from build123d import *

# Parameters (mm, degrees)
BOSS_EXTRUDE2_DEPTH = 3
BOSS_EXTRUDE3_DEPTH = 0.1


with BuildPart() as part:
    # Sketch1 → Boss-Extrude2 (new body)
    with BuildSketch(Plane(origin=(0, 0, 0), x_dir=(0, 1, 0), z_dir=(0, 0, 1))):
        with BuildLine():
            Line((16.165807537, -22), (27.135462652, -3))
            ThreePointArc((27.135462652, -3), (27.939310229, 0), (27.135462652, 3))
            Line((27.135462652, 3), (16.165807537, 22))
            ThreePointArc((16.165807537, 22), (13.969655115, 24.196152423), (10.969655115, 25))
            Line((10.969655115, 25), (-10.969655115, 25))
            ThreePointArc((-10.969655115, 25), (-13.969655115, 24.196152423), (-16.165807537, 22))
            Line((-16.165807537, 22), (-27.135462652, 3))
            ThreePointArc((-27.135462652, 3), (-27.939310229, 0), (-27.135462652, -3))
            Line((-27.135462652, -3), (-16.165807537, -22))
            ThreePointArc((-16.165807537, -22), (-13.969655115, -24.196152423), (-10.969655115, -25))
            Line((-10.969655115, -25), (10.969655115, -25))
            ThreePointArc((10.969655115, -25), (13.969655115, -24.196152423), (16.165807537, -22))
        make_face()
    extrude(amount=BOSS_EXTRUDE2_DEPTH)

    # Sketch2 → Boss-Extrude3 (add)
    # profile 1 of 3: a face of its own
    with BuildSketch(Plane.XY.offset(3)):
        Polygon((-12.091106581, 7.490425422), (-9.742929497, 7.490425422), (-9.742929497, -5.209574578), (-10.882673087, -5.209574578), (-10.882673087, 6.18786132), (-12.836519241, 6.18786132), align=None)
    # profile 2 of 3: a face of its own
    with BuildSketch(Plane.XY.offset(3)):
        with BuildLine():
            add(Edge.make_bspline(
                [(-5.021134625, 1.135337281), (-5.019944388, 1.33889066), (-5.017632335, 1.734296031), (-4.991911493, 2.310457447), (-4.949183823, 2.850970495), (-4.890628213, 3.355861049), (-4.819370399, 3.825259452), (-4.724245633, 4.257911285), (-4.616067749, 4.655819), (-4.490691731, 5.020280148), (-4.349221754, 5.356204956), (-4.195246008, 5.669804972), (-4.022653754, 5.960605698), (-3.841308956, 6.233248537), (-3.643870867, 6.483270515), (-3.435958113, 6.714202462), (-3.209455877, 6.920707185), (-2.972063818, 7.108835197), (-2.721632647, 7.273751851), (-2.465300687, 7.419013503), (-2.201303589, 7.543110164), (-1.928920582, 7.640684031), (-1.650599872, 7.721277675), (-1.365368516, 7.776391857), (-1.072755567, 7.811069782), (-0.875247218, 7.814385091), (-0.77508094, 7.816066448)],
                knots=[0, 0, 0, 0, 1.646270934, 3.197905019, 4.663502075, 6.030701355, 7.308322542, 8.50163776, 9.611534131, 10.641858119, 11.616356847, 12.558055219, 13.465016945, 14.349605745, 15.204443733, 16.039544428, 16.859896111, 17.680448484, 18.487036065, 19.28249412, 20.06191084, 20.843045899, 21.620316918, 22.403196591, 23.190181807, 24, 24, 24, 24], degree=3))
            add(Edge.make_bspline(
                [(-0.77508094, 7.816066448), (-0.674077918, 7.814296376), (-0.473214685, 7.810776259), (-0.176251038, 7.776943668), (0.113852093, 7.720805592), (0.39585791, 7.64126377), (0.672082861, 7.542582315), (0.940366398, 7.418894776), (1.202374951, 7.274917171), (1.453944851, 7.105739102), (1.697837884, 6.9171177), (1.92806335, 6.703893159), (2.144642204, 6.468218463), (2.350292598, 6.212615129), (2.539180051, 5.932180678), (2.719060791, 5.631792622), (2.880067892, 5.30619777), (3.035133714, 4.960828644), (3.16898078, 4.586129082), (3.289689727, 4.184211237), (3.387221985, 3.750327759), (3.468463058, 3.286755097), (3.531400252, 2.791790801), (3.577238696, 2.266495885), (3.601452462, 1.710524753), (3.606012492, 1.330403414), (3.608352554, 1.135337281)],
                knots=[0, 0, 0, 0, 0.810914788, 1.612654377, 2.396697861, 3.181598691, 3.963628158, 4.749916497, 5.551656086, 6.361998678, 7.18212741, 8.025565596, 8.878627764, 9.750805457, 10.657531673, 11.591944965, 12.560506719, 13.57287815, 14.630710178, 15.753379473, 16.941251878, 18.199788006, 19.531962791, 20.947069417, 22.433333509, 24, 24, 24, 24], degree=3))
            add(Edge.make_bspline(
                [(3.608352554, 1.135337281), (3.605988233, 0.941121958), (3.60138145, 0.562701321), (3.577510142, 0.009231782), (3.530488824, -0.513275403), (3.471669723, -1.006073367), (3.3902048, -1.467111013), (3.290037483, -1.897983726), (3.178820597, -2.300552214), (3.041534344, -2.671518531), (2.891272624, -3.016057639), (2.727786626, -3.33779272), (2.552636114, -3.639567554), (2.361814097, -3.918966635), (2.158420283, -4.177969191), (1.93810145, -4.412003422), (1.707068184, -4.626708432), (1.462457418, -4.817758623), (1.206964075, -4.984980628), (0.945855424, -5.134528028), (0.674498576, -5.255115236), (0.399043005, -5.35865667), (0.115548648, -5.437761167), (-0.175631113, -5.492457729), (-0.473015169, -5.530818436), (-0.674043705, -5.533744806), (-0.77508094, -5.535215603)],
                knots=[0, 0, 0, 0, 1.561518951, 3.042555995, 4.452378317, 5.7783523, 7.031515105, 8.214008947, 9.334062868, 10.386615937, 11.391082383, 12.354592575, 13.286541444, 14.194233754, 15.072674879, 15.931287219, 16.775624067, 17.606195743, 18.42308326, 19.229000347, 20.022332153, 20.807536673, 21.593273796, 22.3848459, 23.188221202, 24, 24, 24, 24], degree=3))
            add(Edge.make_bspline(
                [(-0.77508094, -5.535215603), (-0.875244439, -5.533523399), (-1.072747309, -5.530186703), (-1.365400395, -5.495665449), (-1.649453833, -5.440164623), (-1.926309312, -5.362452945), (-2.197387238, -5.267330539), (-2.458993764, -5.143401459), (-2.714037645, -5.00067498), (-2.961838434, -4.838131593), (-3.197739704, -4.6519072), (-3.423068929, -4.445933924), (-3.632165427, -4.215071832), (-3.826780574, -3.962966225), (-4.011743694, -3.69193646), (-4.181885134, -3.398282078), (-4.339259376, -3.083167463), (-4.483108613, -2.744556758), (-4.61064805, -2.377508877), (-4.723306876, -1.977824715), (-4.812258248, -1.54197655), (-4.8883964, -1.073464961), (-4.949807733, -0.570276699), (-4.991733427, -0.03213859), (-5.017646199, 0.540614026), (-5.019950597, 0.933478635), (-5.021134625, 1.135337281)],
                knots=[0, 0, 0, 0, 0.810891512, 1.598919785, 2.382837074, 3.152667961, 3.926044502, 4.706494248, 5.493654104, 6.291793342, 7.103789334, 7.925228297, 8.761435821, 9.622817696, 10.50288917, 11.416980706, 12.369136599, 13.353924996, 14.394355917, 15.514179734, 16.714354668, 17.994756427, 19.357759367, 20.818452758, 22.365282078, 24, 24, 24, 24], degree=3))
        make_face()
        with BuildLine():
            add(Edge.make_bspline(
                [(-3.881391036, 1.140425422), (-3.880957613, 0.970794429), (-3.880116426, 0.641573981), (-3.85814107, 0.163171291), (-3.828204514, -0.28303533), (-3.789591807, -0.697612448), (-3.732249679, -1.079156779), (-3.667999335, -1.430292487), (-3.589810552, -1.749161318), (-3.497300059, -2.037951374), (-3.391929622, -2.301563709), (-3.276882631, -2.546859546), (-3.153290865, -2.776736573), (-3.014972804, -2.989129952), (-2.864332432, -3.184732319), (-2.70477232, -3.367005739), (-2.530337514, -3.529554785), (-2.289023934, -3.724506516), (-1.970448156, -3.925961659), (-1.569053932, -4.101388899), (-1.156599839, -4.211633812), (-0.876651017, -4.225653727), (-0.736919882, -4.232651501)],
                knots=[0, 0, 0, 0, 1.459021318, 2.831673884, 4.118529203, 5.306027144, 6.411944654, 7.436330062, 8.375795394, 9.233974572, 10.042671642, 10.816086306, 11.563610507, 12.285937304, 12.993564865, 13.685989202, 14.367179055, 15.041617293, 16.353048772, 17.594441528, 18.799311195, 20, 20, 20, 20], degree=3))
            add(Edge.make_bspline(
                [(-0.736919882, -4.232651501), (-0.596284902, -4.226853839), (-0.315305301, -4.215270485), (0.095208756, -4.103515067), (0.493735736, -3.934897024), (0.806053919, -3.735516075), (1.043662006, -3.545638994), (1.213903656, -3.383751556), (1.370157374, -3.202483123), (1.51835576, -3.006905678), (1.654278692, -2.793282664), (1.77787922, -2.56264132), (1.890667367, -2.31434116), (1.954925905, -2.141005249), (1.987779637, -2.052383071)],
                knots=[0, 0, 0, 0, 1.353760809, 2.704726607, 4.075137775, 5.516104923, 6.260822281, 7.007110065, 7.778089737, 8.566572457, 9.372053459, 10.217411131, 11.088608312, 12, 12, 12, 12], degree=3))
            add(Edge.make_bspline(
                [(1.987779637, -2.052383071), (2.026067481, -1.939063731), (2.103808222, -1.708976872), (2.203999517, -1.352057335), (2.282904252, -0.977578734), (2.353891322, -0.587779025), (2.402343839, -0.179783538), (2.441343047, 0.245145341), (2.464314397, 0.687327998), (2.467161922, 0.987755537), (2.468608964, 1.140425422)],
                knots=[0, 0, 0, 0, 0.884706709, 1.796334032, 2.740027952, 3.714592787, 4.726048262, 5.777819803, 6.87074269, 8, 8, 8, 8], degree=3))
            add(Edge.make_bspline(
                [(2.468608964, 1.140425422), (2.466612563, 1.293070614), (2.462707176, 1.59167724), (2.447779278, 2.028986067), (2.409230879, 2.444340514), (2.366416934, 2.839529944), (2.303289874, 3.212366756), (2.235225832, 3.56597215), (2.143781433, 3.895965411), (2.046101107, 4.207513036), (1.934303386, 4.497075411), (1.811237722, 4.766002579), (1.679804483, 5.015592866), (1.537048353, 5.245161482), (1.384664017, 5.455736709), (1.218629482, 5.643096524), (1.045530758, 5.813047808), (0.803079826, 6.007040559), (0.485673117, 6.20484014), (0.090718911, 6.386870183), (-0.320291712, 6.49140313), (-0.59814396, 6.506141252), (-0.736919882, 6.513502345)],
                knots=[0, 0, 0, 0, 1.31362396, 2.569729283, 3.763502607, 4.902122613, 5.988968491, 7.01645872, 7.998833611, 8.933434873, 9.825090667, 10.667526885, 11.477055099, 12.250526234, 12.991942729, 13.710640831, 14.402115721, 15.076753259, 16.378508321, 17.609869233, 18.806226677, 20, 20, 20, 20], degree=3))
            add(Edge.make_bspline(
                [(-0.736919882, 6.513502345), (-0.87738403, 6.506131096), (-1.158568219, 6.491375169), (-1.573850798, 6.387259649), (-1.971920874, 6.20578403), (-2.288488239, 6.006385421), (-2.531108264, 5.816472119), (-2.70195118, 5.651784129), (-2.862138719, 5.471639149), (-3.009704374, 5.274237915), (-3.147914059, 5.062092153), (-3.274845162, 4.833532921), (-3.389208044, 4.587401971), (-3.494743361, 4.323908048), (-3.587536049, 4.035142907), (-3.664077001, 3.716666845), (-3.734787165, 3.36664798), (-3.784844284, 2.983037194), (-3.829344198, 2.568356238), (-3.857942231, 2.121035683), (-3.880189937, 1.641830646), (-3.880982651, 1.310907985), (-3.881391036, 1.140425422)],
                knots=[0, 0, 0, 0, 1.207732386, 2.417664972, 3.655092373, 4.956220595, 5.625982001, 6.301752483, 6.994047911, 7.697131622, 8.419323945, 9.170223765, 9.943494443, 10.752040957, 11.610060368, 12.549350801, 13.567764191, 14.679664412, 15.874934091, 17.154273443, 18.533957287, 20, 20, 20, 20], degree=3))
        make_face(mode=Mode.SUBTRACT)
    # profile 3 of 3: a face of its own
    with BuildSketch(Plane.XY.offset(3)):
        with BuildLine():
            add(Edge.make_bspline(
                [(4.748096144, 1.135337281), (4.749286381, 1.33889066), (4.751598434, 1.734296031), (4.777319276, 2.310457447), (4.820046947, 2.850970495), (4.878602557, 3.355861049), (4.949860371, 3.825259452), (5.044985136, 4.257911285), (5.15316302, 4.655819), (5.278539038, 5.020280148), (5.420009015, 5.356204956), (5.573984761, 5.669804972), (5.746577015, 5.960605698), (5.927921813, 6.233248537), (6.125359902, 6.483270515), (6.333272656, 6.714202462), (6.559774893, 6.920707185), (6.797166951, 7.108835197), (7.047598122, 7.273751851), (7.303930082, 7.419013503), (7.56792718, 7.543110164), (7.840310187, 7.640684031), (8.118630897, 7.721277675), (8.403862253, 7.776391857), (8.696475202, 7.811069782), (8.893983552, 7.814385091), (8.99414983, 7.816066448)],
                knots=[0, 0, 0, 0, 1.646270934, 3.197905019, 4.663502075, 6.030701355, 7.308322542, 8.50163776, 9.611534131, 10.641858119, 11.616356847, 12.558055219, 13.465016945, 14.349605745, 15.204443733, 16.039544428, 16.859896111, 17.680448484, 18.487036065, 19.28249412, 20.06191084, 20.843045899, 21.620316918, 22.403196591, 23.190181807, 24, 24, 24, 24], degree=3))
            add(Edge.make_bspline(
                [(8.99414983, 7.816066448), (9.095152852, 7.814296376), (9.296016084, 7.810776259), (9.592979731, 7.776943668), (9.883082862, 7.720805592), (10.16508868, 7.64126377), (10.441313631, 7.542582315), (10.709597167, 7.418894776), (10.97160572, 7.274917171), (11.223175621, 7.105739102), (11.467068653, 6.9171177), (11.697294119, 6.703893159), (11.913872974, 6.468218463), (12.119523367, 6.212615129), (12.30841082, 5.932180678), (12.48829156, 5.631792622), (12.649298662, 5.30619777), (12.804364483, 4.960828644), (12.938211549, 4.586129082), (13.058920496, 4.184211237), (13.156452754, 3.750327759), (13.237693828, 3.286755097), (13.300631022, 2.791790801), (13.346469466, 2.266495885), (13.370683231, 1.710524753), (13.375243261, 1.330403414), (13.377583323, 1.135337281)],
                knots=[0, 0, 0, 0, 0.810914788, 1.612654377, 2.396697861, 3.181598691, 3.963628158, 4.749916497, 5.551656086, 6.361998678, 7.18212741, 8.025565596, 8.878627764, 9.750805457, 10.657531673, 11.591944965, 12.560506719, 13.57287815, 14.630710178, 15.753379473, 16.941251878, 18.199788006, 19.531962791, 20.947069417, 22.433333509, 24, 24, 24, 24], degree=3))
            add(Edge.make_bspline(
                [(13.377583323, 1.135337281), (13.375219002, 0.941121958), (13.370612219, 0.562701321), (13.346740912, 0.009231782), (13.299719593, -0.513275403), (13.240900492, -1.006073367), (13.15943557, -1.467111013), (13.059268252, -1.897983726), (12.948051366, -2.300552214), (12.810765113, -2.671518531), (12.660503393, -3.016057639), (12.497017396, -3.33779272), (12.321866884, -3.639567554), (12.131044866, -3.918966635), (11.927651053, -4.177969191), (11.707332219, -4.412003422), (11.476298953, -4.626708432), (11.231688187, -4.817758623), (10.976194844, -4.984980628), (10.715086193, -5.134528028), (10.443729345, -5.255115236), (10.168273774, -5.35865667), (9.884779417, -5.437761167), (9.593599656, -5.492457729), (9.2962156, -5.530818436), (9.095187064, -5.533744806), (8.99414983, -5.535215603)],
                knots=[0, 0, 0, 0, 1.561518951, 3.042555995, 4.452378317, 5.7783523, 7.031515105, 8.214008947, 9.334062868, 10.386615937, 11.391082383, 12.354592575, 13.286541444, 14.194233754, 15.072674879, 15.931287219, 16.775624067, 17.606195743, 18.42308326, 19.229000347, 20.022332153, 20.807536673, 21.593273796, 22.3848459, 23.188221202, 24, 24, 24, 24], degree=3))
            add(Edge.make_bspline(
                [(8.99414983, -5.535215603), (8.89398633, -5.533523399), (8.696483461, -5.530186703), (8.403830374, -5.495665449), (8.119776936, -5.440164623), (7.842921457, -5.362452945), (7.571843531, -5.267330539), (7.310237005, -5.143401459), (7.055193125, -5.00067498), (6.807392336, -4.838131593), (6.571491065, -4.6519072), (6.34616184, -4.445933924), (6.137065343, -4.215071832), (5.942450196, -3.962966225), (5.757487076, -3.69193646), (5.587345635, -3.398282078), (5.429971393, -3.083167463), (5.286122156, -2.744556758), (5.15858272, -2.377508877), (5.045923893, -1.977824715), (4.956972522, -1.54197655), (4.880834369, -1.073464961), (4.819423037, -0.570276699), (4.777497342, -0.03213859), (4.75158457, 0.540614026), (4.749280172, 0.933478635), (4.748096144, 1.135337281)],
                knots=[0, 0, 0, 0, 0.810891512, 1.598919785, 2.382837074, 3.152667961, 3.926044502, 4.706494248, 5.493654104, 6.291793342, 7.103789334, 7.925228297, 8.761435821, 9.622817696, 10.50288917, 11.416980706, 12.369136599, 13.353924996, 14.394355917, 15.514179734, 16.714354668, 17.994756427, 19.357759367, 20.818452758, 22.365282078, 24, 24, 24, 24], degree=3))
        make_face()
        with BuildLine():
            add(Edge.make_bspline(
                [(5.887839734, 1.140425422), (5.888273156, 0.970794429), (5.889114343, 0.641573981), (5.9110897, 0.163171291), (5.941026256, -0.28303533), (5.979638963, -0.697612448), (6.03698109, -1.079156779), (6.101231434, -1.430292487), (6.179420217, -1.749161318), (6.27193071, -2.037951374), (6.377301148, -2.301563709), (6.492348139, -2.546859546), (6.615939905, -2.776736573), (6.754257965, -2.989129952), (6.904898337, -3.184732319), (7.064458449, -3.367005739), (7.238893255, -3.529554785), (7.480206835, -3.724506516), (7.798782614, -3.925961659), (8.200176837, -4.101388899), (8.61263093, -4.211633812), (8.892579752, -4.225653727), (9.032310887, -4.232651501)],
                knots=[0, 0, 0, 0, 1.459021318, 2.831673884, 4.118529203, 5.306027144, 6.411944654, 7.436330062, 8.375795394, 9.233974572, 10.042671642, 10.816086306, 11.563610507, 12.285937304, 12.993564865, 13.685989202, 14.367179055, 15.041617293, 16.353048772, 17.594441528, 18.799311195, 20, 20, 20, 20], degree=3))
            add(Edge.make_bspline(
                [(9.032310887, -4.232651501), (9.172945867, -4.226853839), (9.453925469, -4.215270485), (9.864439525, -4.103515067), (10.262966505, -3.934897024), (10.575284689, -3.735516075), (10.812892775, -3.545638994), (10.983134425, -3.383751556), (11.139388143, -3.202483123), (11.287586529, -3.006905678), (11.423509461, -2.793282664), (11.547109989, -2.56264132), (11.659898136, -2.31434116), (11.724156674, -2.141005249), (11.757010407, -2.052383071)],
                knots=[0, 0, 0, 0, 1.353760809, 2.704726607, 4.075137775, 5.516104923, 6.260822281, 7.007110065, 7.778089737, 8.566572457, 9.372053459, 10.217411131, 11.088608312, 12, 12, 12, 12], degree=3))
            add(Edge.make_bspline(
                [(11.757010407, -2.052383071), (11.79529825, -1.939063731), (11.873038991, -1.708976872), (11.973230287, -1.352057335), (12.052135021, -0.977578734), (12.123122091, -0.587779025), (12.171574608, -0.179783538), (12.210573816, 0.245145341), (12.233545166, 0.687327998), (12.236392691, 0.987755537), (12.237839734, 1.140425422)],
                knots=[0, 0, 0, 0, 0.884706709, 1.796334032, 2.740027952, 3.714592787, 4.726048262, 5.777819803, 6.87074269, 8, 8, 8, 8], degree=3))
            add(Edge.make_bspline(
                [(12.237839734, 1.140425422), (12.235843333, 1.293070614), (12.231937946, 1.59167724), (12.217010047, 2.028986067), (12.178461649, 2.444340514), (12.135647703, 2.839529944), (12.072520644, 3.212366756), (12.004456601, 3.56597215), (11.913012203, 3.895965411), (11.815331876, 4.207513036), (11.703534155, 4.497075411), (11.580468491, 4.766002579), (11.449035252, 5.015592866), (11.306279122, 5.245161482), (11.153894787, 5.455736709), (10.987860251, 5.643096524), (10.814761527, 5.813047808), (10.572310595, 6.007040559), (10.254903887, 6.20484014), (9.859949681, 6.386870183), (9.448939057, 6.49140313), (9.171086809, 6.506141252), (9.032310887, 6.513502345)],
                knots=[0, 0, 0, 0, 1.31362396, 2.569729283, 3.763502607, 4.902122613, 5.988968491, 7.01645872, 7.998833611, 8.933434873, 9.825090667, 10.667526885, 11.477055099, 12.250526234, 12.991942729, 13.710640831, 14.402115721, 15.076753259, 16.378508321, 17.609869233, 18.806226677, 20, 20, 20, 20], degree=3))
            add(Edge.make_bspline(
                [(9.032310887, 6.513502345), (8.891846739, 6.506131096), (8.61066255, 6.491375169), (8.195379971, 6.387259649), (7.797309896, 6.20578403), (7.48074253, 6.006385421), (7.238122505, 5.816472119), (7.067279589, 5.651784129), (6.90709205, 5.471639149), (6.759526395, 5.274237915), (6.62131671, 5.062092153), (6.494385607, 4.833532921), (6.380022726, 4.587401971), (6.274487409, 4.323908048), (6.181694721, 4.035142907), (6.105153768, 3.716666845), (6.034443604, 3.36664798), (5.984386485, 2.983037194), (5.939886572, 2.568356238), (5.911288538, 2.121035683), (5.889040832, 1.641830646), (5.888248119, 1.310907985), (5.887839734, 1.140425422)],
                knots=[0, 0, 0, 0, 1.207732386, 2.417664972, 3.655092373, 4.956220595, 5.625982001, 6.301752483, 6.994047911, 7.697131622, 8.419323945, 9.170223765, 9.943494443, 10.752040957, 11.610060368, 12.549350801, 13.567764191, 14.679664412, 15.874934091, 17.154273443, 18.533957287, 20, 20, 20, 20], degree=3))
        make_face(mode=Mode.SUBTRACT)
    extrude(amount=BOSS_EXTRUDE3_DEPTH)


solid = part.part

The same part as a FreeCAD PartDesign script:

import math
import FreeCAD as App
import Part
import Sketcher
from FreeCAD import Vector
Q = App.Units.Quantity

doc = App.newDocument("Part")
body = doc.addObject("PartDesign::Body", "Body")

sketch1 = body.newObject("Sketcher::SketchObject", "Sketch")
sketch1.AttachmentSupport = (doc.getObject("XY_Plane"), [""])
sketch1.MapMode = "FlatFace"
sketch1.addGeometry([
    Part.LineSegment(Vector(22, 16.165808, 0), Vector(3, 27.135463, 0)),
    Part.ArcOfCircle(Part.Circle(Vector(0, 21.93931, 0), Vector(0, 0, 1), 6), math.radians(60), math.radians(120)),
    Part.LineSegment(Vector(-3, 27.135463, 0), Vector(-22, 16.165808, 0)),
    Part.ArcOfCircle(Part.Circle(Vector(-19, 10.969655, 0), Vector(0, 0, 1), 6), math.radians(120), math.radians(180)),
    Part.LineSegment(Vector(-25, 10.969655, 0), Vector(-25, -10.969655, 0)),
    Part.ArcOfCircle(Part.Circle(Vector(-19, -10.969655, 0), Vector(0, 0, 1), 6), math.radians(180), math.radians(240)),
    Part.LineSegment(Vector(-22, -16.165808, 0), Vector(-3, -27.135463, 0)),
    Part.ArcOfCircle(Part.Circle(Vector(0, -21.93931, 0), Vector(0, 0, 1), 6), math.radians(-120), math.radians(-60)),
    Part.LineSegment(Vector(3, -27.135463, 0), Vector(22, -16.165808, 0)),
    Part.ArcOfCircle(Part.Circle(Vector(19, -10.969655, 0), Vector(0, 0, 1), 6), math.radians(-60), math.radians(0)),
    Part.LineSegment(Vector(25, -10.969655, 0), Vector(25, 10.969655, 0)),
    Part.ArcOfCircle(Part.Circle(Vector(19, 10.969655, 0), Vector(0, 0, 1), 6), math.radians(0), math.radians(60)),
], False)
sketch1.addConstraint([
    Sketcher.Constraint("Tangent", 0, 2, 1, 1),
    Sketcher.Constraint("Tangent", 1, 2, 2, 1),
    Sketcher.Constraint("Tangent", 2, 2, 3, 1),
    Sketcher.Constraint("Tangent", 3, 2, 4, 1),
    Sketcher.Constraint("Tangent", 4, 2, 5, 1),
    Sketcher.Constraint("Tangent", 5, 2, 6, 1),
    Sketcher.Constraint("Tangent", 6, 2, 7, 1),
    Sketcher.Constraint("Tangent", 7, 2, 8, 1),
    Sketcher.Constraint("Tangent", 8, 2, 9, 1),
    Sketcher.Constraint("Tangent", 9, 2, 10, 1),
    Sketcher.Constraint("Tangent", 10, 2, 11, 1),
    Sketcher.Constraint("Tangent", 11, 2, 0, 1),
    Sketcher.Constraint("Vertical", 4),
    Sketcher.Constraint("Vertical", 10),
    Sketcher.Constraint("Equal", 1, 3),
    Sketcher.Constraint("Equal", 3, 5),
    Sketcher.Constraint("Equal", 5, 7),
    Sketcher.Constraint("Equal", 7, 9),
    Sketcher.Constraint("Equal", 9, 11),
    Sketcher.Constraint("Symmetric", 1, 3, 7, 3, -1, 1),
    Sketcher.Constraint("Symmetric", 3, 3, 9, 3, -1, 1),
    Sketcher.Constraint("Symmetric", 0, 2, 1, 2, -2),
    Sketcher.Constraint("Parallel", 0, 6),
    Sketcher.Constraint("Radius", 1, 6.0),
    Sketcher.Constraint("Angle", 0, Q("150 deg")),
    Sketcher.Constraint("DistanceX", 3, 3, -1, 1, 19.0),
    Sketcher.Constraint("DistanceY", 4, 2, 4, 1, 21.93931),
])
pad1 = body.newObject("PartDesign::Pad", "Pad")
pad1.Profile = sketch1
pad1.Length = 3

sketch2 = body.newObject("Sketcher::SketchObject", "Sketch001")
sketch2.AttachmentSupport = (doc.getObject("XY_Plane"), [""])
sketch2.MapMode = "FlatFace"
sketch2.AttachmentOffset = App.Placement(Vector(0, 0, 3), App.Rotation())
sketch2.addGeometry([
    Part.LineSegment(Vector(-9.742929, 7.490425, 0), Vector(-12.091107, 7.490425, 0)),
    Part.LineSegment(Vector(-12.091107, 7.490425, 0), Vector(-12.836519, 6.187861, 0)),
    Part.LineSegment(Vector(-12.836519, 6.187861, 0), Vector(-10.882673, 6.187861, 0)),
    Part.LineSegment(Vector(-10.882673, 6.187861, 0), Vector(-10.882673, -5.209575, 0)),
    Part.LineSegment(Vector(-10.882673, -5.209575, 0), Vector(-9.742929, -5.209575, 0)),
    Part.LineSegment(Vector(-9.742929, -5.209575, 0), Vector(-9.742929, 7.490425, 0)),
    Part.BSplineCurve([Vector(-5.021135, 1.135337, 0), Vector(-5.019944, 1.338891, 0), Vector(-5.017632, 1.734296, 0), Vector(-4.991911, 2.310457, 0), Vector(-4.949184, 2.85097, 0), Vector(-4.890628, 3.355861, 0), Vector(-4.81937, 3.825259, 0), Vector(-4.724246, 4.257911, 0), Vector(-4.616068, 4.655819, 0), Vector(-4.490692, 5.02028, 0), Vector(-4.349222, 5.356205, 0), Vector(-4.195246, 5.669805, 0), Vector(-4.022654, 5.960606, 0), Vector(-3.841309, 6.233249, 0), Vector(-3.643871, 6.483271, 0), Vector(-3.435958, 6.714202, 0), Vector(-3.209456, 6.920707, 0), Vector(-2.972064, 7.108835, 0), Vector(-2.721633, 7.273752, 0), Vector(-2.465301, 7.419014, 0), Vector(-2.201304, 7.54311, 0), Vector(-1.928921, 7.640684, 0), Vector(-1.6506, 7.721278, 0), Vector(-1.365369, 7.776392, 0), Vector(-1.072756, 7.81107, 0), Vector(-0.875247, 7.814385, 0), Vector(-0.775081, 7.816066, 0)], [4, 1, 1, 1, 1, 1, 1, 1, 1, 1, 1, 1, 1, 1, 1, 1, 1, 1, 1, 1, 1, 1, 1, 1, 4], [0, 1.646270934, 3.197905019, 4.663502075, 6.030701355, 7.308322542, 8.50163776, 9.611534131, 10.641858119, 11.616356847, 12.558055219, 13.465016945, 14.349605745, 15.204443733, 16.039544428, 16.859896111, 17.680448484, 18.487036065, 19.28249412, 20.06191084, 20.843045899, 21.620316918, 22.403196591, 23.190181807, 24], False, 3, [1, 1, 1, 1, 1, 1, 1, 1, 1, 1, 1, 1, 1, 1, 1, 1, 1, 1, 1, 1, 1, 1, 1, 1, 1, 1, 1], False),
    Part.BSplineCurve([Vector(-0.775081, -5.535216, 0), Vector(-0.875244, -5.533523, 0), Vector(-1.072747, -5.530187, 0), Vector(-1.3654, -5.495665, 0), Vector(-1.649454, -5.440165, 0), Vector(-1.926309, -5.362453, 0), Vector(-2.197387, -5.267331, 0), Vector(-2.458994, -5.143401, 0), Vector(-2.714038, -5.000675, 0), Vector(-2.961838, -4.838132, 0), Vector(-3.19774, -4.651907, 0), Vector(-3.423069, -4.445934, 0), Vector(-3.632165, -4.215072, 0), Vector(-3.826781, -3.962966, 0), Vector(-4.011744, -3.691936, 0), Vector(-4.181885, -3.398282, 0), Vector(-4.339259, -3.083167, 0), Vector(-4.483109, -2.744557, 0), Vector(-4.610648, -2.377509, 0), Vector(-4.723307, -1.977825, 0), Vector(-4.812258, -1.541977, 0), Vector(-4.888396, -1.073465, 0), Vector(-4.949808, -0.570277, 0), Vector(-4.991733, -0.032139, 0), Vector(-5.017646, 0.540614, 0), Vector(-5.019951, 0.933479, 0), Vector(-5.021135, 1.135337, 0)], [4, 1, 1, 1, 1, 1, 1, 1, 1, 1, 1, 1, 1, 1, 1, 1, 1, 1, 1, 1, 1, 1, 1, 1, 4], [0, 0.810891512, 1.598919785, 2.382837074, 3.152667961, 3.926044502, 4.706494248, 5.493654104, 6.291793342, 7.103789334, 7.925228297, 8.761435821, 9.622817696, 10.50288917, 11.416980706, 12.369136599, 13.353924996, 14.394355917, 15.514179734, 16.714354668, 17.994756427, 19.357759367, 20.818452758, 22.365282078, 24], False, 3, [1, 1, 1, 1, 1, 1, 1, 1, 1, 1, 1, 1, 1, 1, 1, 1, 1, 1, 1, 1, 1, 1, 1, 1, 1, 1, 1], False),
    Part.BSplineCurve([Vector(3.608353, 1.135337, 0), Vector(3.605988, 0.941122, 0), Vector(3.601381, 0.562701, 0), Vector(3.57751, 0.009232, 0), Vector(3.530489, -0.513275, 0), Vector(3.47167, -1.006073, 0), Vector(3.390205, -1.467111, 0), Vector(3.290037, -1.897984, 0), Vector(3.178821, -2.300552, 0), Vector(3.041534, -2.671519, 0), Vector(2.891273, -3.016058, 0), Vector(2.727787, -3.337793, 0), Vector(2.552636, -3.639568, 0), Vector(2.361814, -3.918967, 0), Vector(2.15842, -4.177969, 0), Vector(1.938101, -4.412003, 0), Vector(1.707068, -4.626708, 0), Vector(1.462457, -4.817759, 0), Vector(1.206964, -4.984981, 0), Vector(0.945855, -5.134528, 0), Vector(0.674499, -5.255115, 0), Vector(0.399043, -5.358657, 0), Vector(0.115549, -5.437761, 0), Vector(-0.175631, -5.492458, 0), Vector(-0.473015, -5.530818, 0), Vector(-0.674044, -5.533745, 0), Vector(-0.775081, -5.535216, 0)], [4, 1, 1, 1, 1, 1, 1, 1, 1, 1, 1, 1, 1, 1, 1, 1, 1, 1, 1, 1, 1, 1, 1, 1, 4], [0, 1.561518951, 3.042555995, 4.452378317, 5.7783523, 7.031515105, 8.214008947, 9.334062868, 10.386615937, 11.391082383, 12.354592575, 13.286541444, 14.194233754, 15.072674879, 15.931287219, 16.775624067, 17.606195743, 18.42308326, 19.229000347, 20.022332153, 20.807536673, 21.593273796, 22.3848459, 23.188221202, 24], False, 3, [1, 1, 1, 1, 1, 1, 1, 1, 1, 1, 1, 1, 1, 1, 1, 1, 1, 1, 1, 1, 1, 1, 1, 1, 1, 1, 1], False),
    Part.BSplineCurve([Vector(-0.775081, 7.816066, 0), Vector(-0.674078, 7.814296, 0), Vector(-0.473215, 7.810776, 0), Vector(-0.176251, 7.776944, 0), Vector(0.113852, 7.720806, 0), Vector(0.395858, 7.641264, 0), Vector(0.672083, 7.542582, 0), Vector(0.940366, 7.418895, 0), Vector(1.202375, 7.274917, 0), Vector(1.453945, 7.105739, 0), Vector(1.697838, 6.917118, 0), Vector(1.928063, 6.703893, 0), Vector(2.144642, 6.468218, 0), Vector(2.350293, 6.212615, 0), Vector(2.53918, 5.932181, 0), Vector(2.719061, 5.631793, 0), Vector(2.880068, 5.306198, 0), Vector(3.035134, 4.960829, 0), Vector(3.168981, 4.586129, 0), Vector(3.28969, 4.184211, 0), Vector(3.387222, 3.750328, 0), Vector(3.468463, 3.286755, 0), Vector(3.5314, 2.791791, 0), Vector(3.577239, 2.266496, 0), Vector(3.601452, 1.710525, 0), Vector(3.606012, 1.330403, 0), Vector(3.608353, 1.135337, 0)], [4, 1, 1, 1, 1, 1, 1, 1, 1, 1, 1, 1, 1, 1, 1, 1, 1, 1, 1, 1, 1, 1, 1, 1, 4], [0, 0.810914788, 1.612654377, 2.396697861, 3.181598691, 3.963628158, 4.749916497, 5.551656086, 6.361998678, 7.18212741, 8.025565596, 8.878627764, 9.750805457, 10.657531673, 11.591944965, 12.560506719, 13.57287815, 14.630710178, 15.753379473, 16.941251878, 18.199788006, 19.531962791, 20.947069417, 22.433333509, 24], False, 3, [1, 1, 1, 1, 1, 1, 1, 1, 1, 1, 1, 1, 1, 1, 1, 1, 1, 1, 1, 1, 1, 1, 1, 1, 1, 1, 1], False),
    Part.BSplineCurve([Vector(-0.73692, 6.513502, 0), Vector(-0.877384, 6.506131, 0), Vector(-1.158568, 6.491375, 0), Vector(-1.573851, 6.38726, 0), Vector(-1.971921, 6.205784, 0), Vector(-2.288488, 6.006385, 0), Vector(-2.531108, 5.816472, 0), Vector(-2.701951, 5.651784, 0), Vector(-2.862139, 5.471639, 0), Vector(-3.009704, 5.274238, 0), Vector(-3.147914, 5.062092, 0), Vector(-3.274845, 4.833533, 0), Vector(-3.389208, 4.587402, 0), Vector(-3.494743, 4.323908, 0), Vector(-3.587536, 4.035143, 0), Vector(-3.664077, 3.716667, 0), Vector(-3.734787, 3.366648, 0), Vector(-3.784844, 2.983037, 0), Vector(-3.829344, 2.568356, 0), Vector(-3.857942, 2.121036, 0), Vector(-3.88019, 1.641831, 0), Vector(-3.880983, 1.310908, 0), Vector(-3.881391, 1.140425, 0)], [4, 1, 1, 1, 1, 1, 1, 1, 1, 1, 1, 1, 1, 1, 1, 1, 1, 1, 1, 1, 4], [0, 1.207732386, 2.417664972, 3.655092373, 4.956220595, 5.625982001, 6.301752483, 6.994047911, 7.697131622, 8.419323945, 9.170223765, 9.943494443, 10.752040957, 11.610060368, 12.549350801, 13.567764191, 14.679664412, 15.874934091, 17.154273443, 18.533957287, 20], False, 3, [1, 1, 1, 1, 1, 1, 1, 1, 1, 1, 1, 1, 1, 1, 1, 1, 1, 1, 1, 1, 1, 1, 1], False),
    Part.BSplineCurve([Vector(2.468609, 1.140425, 0), Vector(2.466613, 1.293071, 0), Vector(2.462707, 1.591677, 0), Vector(2.447779, 2.028986, 0), Vector(2.409231, 2.444341, 0), Vector(2.366417, 2.83953, 0), Vector(2.30329, 3.212367, 0), Vector(2.235226, 3.565972, 0), Vector(2.143781, 3.895965, 0), Vector(2.046101, 4.207513, 0), Vector(1.934303, 4.497075, 0), Vector(1.811238, 4.766003, 0), Vector(1.679804, 5.015593, 0), Vector(1.537048, 5.245161, 0), Vector(1.384664, 5.455737, 0), Vector(1.218629, 5.643097, 0), Vector(1.045531, 5.813048, 0), Vector(0.80308, 6.007041, 0), Vector(0.485673, 6.20484, 0), Vector(0.090719, 6.38687, 0), Vector(-0.320292, 6.491403, 0), Vector(-0.598144, 6.506141, 0), Vector(-0.73692, 6.513502, 0)], [4, 1, 1, 1, 1, 1, 1, 1, 1, 1, 1, 1, 1, 1, 1, 1, 1, 1, 1, 1, 4], [0, 1.31362396, 2.569729283, 3.763502607, 4.902122613, 5.988968491, 7.01645872, 7.998833611, 8.933434873, 9.825090667, 10.667526885, 11.477055099, 12.250526234, 12.991942729, 13.710640831, 14.402115721, 15.076753259, 16.378508321, 17.609869233, 18.806226677, 20], False, 3, [1, 1, 1, 1, 1, 1, 1, 1, 1, 1, 1, 1, 1, 1, 1, 1, 1, 1, 1, 1, 1, 1, 1], False),
    Part.BSplineCurve([Vector(1.98778, -2.052383, 0), Vector(2.026067, -1.939064, 0), Vector(2.103808, -1.708977, 0), Vector(2.204, -1.352057, 0), Vector(2.282904, -0.977579, 0), Vector(2.353891, -0.587779, 0), Vector(2.402344, -0.179784, 0), Vector(2.441343, 0.245145, 0), Vector(2.464314, 0.687328, 0), Vector(2.467162, 0.987756, 0), Vector(2.468609, 1.140425, 0)], [4, 1, 1, 1, 1, 1, 1, 1, 4], [0, 0.884706709, 1.796334032, 2.740027952, 3.714592787, 4.726048262, 5.777819803, 6.87074269, 8], False, 3, [1, 1, 1, 1, 1, 1, 1, 1, 1, 1, 1], False),
    Part.BSplineCurve([Vector(-0.73692, -4.232652, 0), Vector(-0.596285, -4.226854, 0), Vector(-0.315305, -4.21527, 0), Vector(0.095209, -4.103515, 0), Vector(0.493736, -3.934897, 0), Vector(0.806054, -3.735516, 0), Vector(1.043662, -3.545639, 0), Vector(1.213904, -3.383752, 0), Vector(1.370157, -3.202483, 0), Vector(1.518356, -3.006906, 0), Vector(1.654279, -2.793283, 0), Vector(1.777879, -2.562641, 0), Vector(1.890667, -2.314341, 0), Vector(1.954926, -2.141005, 0), Vector(1.98778, -2.052383, 0)], [4, 1, 1, 1, 1, 1, 1, 1, 1, 1, 1, 1, 4], [0, 1.353760809, 2.704726607, 4.075137775, 5.516104923, 6.260822281, 7.007110065, 7.778089737, 8.566572457, 9.372053459, 10.217411131, 11.088608312, 12], False, 3, [1, 1, 1, 1, 1, 1, 1, 1, 1, 1, 1, 1, 1, 1, 1], False),
    Part.BSplineCurve([Vector(-3.881391, 1.140425, 0), Vector(-3.880958, 0.970794, 0), Vector(-3.880116, 0.641574, 0), Vector(-3.858141, 0.163171, 0), Vector(-3.828205, -0.283035, 0), Vector(-3.789592, -0.697612, 0), Vector(-3.73225, -1.079157, 0), Vector(-3.667999, -1.430292, 0), Vector(-3.589811, -1.749161, 0), Vector(-3.4973, -2.037951, 0), Vector(-3.39193, -2.301564, 0), Vector(-3.276883, -2.54686, 0), Vector(-3.153291, -2.776737, 0), Vector(-3.014973, -2.98913, 0), Vector(-2.864332, -3.184732, 0), Vector(-2.704772, -3.367006, 0), Vector(-2.530338, -3.529555, 0), Vector(-2.289024, -3.724507, 0), Vector(-1.970448, -3.925962, 0), Vector(-1.569054, -4.101389, 0), Vector(-1.1566, -4.211634, 0), Vector(-0.876651, -4.225654, 0), Vector(-0.73692, -4.232652, 0)], [4, 1, 1, 1, 1, 1, 1, 1, 1, 1, 1, 1, 1, 1, 1, 1, 1, 1, 1, 1, 4], [0, 1.459021318, 2.831673884, 4.118529203, 5.306027144, 6.411944654, 7.436330062, 8.375795394, 9.233974572, 10.042671642, 10.816086306, 11.563610507, 12.285937304, 12.993564865, 13.685989202, 14.367179055, 15.041617293, 16.353048772, 17.594441528, 18.799311195, 20], False, 3, [1, 1, 1, 1, 1, 1, 1, 1, 1, 1, 1, 1, 1, 1, 1, 1, 1, 1, 1, 1, 1, 1, 1], False),
    Part.BSplineCurve([Vector(4.748096, 1.135337, 0), Vector(4.749286, 1.338891, 0), Vector(4.751598, 1.734296, 0), Vector(4.777319, 2.310457, 0), Vector(4.820047, 2.85097, 0), Vector(4.878603, 3.355861, 0), Vector(4.94986, 3.825259, 0), Vector(5.044985, 4.257911, 0), Vector(5.153163, 4.655819, 0), Vector(5.278539, 5.02028, 0), Vector(5.420009, 5.356205, 0), Vector(5.573985, 5.669805, 0), Vector(5.746577, 5.960606, 0), Vector(5.927922, 6.233249, 0), Vector(6.12536, 6.483271, 0), Vector(6.333273, 6.714202, 0), Vector(6.559775, 6.920707, 0), Vector(6.797167, 7.108835, 0), Vector(7.047598, 7.273752, 0), Vector(7.30393, 7.419014, 0), Vector(7.567927, 7.54311, 0), Vector(7.84031, 7.640684, 0), Vector(8.118631, 7.721278, 0), Vector(8.403862, 7.776392, 0), Vector(8.696475, 7.81107, 0), Vector(8.893984, 7.814385, 0), Vector(8.99415, 7.816066, 0)], [4, 1, 1, 1, 1, 1, 1, 1, 1, 1, 1, 1, 1, 1, 1, 1, 1, 1, 1, 1, 1, 1, 1, 1, 4], [0, 1.646270934, 3.197905019, 4.663502075, 6.030701355, 7.308322542, 8.50163776, 9.611534131, 10.641858119, 11.616356847, 12.558055219, 13.465016945, 14.349605745, 15.204443733, 16.039544428, 16.859896111, 17.680448484, 18.487036065, 19.28249412, 20.06191084, 20.843045899, 21.620316918, 22.403196591, 23.190181807, 24], False, 3, [1, 1, 1, 1, 1, 1, 1, 1, 1, 1, 1, 1, 1, 1, 1, 1, 1, 1, 1, 1, 1, 1, 1, 1, 1, 1, 1], False),
    Part.BSplineCurve([Vector(8.99415, -5.535216, 0), Vector(8.893986, -5.533523, 0), Vector(8.696483, -5.530187, 0), Vector(8.40383, -5.495665, 0), Vector(8.119777, -5.440165, 0), Vector(7.842921, -5.362453, 0), Vector(7.571844, -5.267331, 0), Vector(7.310237, -5.143401, 0), Vector(7.055193, -5.000675, 0), Vector(6.807392, -4.838132, 0), Vector(6.571491, -4.651907, 0), Vector(6.346162, -4.445934, 0), Vector(6.137065, -4.215072, 0), Vector(5.94245, -3.962966, 0), Vector(5.757487, -3.691936, 0), Vector(5.587346, -3.398282, 0), Vector(5.429971, -3.083167, 0), Vector(5.286122, -2.744557, 0), Vector(5.158583, -2.377509, 0), Vector(5.045924, -1.977825, 0), Vector(4.956973, -1.541977, 0), Vector(4.880834, -1.073465, 0), Vector(4.819423, -0.570277, 0), Vector(4.777497, -0.032139, 0), Vector(4.751585, 0.540614, 0), Vector(4.74928, 0.933479, 0), Vector(4.748096, 1.135337, 0)], [4, 1, 1, 1, 1, 1, 1, 1, 1, 1, 1, 1, 1, 1, 1, 1, 1, 1, 1, 1, 1, 1, 1, 1, 4], [0, 0.810891512, 1.598919785, 2.382837074, 3.152667961, 3.926044502, 4.706494248, 5.493654104, 6.291793342, 7.103789334, 7.925228297, 8.761435821, 9.622817696, 10.50288917, 11.416980706, 12.369136599, 13.353924996, 14.394355917, 15.514179734, 16.714354668, 17.994756427, 19.357759367, 20.818452758, 22.365282078, 24], False, 3, [1, 1, 1, 1, 1, 1, 1, 1, 1, 1, 1, 1, 1, 1, 1, 1, 1, 1, 1, 1, 1, 1, 1, 1, 1, 1, 1], False),
    Part.BSplineCurve([Vector(13.377583, 1.135337, 0), Vector(13.375219, 0.941122, 0), Vector(13.370612, 0.562701, 0), Vector(13.346741, 0.009232, 0), Vector(13.29972, -0.513275, 0), Vector(13.2409, -1.006073, 0), Vector(13.159436, -1.467111, 0), Vector(13.059268, -1.897984, 0), Vector(12.948051, -2.300552, 0), Vector(12.810765, -2.671519, 0), Vector(12.660503, -3.016058, 0), Vector(12.497017, -3.337793, 0), Vector(12.321867, -3.639568, 0), Vector(12.131045, -3.918967, 0), Vector(11.927651, -4.177969, 0), Vector(11.707332, -4.412003, 0), Vector(11.476299, -4.626708, 0), Vector(11.231688, -4.817759, 0), Vector(10.976195, -4.984981, 0), Vector(10.715086, -5.134528, 0), Vector(10.443729, -5.255115, 0), Vector(10.168274, -5.358657, 0), Vector(9.884779, -5.437761, 0), Vector(9.5936, -5.492458, 0), Vector(9.296216, -5.530818, 0), Vector(9.095187, -5.533745, 0), Vector(8.99415, -5.535216, 0)], [4, 1, 1, 1, 1, 1, 1, 1, 1, 1, 1, 1, 1, 1, 1, 1, 1, 1, 1, 1, 1, 1, 1, 1, 4], [0, 1.561518951, 3.042555995, 4.452378317, 5.7783523, 7.031515105, 8.214008947, 9.334062868, 10.386615937, 11.391082383, 12.354592575, 13.286541444, 14.194233754, 15.072674879, 15.931287219, 16.775624067, 17.606195743, 18.42308326, 19.229000347, 20.022332153, 20.807536673, 21.593273796, 22.3848459, 23.188221202, 24], False, 3, [1, 1, 1, 1, 1, 1, 1, 1, 1, 1, 1, 1, 1, 1, 1, 1, 1, 1, 1, 1, 1, 1, 1, 1, 1, 1, 1], False),
    Part.BSplineCurve([Vector(8.99415, 7.816066, 0), Vector(9.095153, 7.814296, 0), Vector(9.296016, 7.810776, 0), Vector(9.59298, 7.776944, 0), Vector(9.883083, 7.720806, 0), Vector(10.165089, 7.641264, 0), Vector(10.441314, 7.542582, 0), Vector(10.709597, 7.418895, 0), Vector(10.971606, 7.274917, 0), Vector(11.223176, 7.105739, 0), Vector(11.467069, 6.917118, 0), Vector(11.697294, 6.703893, 0), Vector(11.913873, 6.468218, 0), Vector(12.119523, 6.212615, 0), Vector(12.308411, 5.932181, 0), Vector(12.488292, 5.631793, 0), Vector(12.649299, 5.306198, 0), Vector(12.804364, 4.960829, 0), Vector(12.938212, 4.586129, 0), Vector(13.05892, 4.184211, 0), Vector(13.156453, 3.750328, 0), Vector(13.237694, 3.286755, 0), Vector(13.300631, 2.791791, 0), Vector(13.346469, 2.266496, 0), Vector(13.370683, 1.710525, 0), Vector(13.375243, 1.330403, 0), Vector(13.377583, 1.135337, 0)], [4, 1, 1, 1, 1, 1, 1, 1, 1, 1, 1, 1, 1, 1, 1, 1, 1, 1, 1, 1, 1, 1, 1, 1, 4], [0, 0.810914788, 1.612654377, 2.396697861, 3.181598691, 3.963628158, 4.749916497, 5.551656086, 6.361998678, 7.18212741, 8.025565596, 8.878627764, 9.750805457, 10.657531673, 11.591944965, 12.560506719, 13.57287815, 14.630710178, 15.753379473, 16.941251878, 18.199788006, 19.531962791, 20.947069417, 22.433333509, 24], False, 3, [1, 1, 1, 1, 1, 1, 1, 1, 1, 1, 1, 1, 1, 1, 1, 1, 1, 1, 1, 1, 1, 1, 1, 1, 1, 1, 1], False),
    Part.BSplineCurve([Vector(9.032311, 6.513502, 0), Vector(8.891847, 6.506131, 0), Vector(8.610663, 6.491375, 0), Vector(8.19538, 6.38726, 0), Vector(7.79731, 6.205784, 0), Vector(7.480743, 6.006385, 0), Vector(7.238123, 5.816472, 0), Vector(7.06728, 5.651784, 0), Vector(6.907092, 5.471639, 0), Vector(6.759526, 5.274238, 0), Vector(6.621317, 5.062092, 0), Vector(6.494386, 4.833533, 0), Vector(6.380023, 4.587402, 0), Vector(6.274487, 4.323908, 0), Vector(6.181695, 4.035143, 0), Vector(6.105154, 3.716667, 0), Vector(6.034444, 3.366648, 0), Vector(5.984386, 2.983037, 0), Vector(5.939887, 2.568356, 0), Vector(5.911289, 2.121036, 0), Vector(5.889041, 1.641831, 0), Vector(5.888248, 1.310908, 0), Vector(5.88784, 1.140425, 0)], [4, 1, 1, 1, 1, 1, 1, 1, 1, 1, 1, 1, 1, 1, 1, 1, 1, 1, 1, 1, 4], [0, 1.207732386, 2.417664972, 3.655092373, 4.956220595, 5.625982001, 6.301752483, 6.994047911, 7.697131622, 8.419323945, 9.170223765, 9.943494443, 10.752040957, 11.610060368, 12.549350801, 13.567764191, 14.679664412, 15.874934091, 17.154273443, 18.533957287, 20], False, 3, [1, 1, 1, 1, 1, 1, 1, 1, 1, 1, 1, 1, 1, 1, 1, 1, 1, 1, 1, 1, 1, 1, 1], False),
    Part.BSplineCurve([Vector(12.23784, 1.140425, 0), Vector(12.235843, 1.293071, 0), Vector(12.231938, 1.591677, 0), Vector(12.21701, 2.028986, 0), Vector(12.178462, 2.444341, 0), Vector(12.135648, 2.83953, 0), Vector(12.072521, 3.212367, 0), Vector(12.004457, 3.565972, 0), Vector(11.913012, 3.895965, 0), Vector(11.815332, 4.207513, 0), Vector(11.703534, 4.497075, 0), Vector(11.580468, 4.766003, 0), Vector(11.449035, 5.015593, 0), Vector(11.306279, 5.245161, 0), Vector(11.153895, 5.455737, 0), Vector(10.98786, 5.643097, 0), Vector(10.814762, 5.813048, 0), Vector(10.572311, 6.007041, 0), Vector(10.254904, 6.20484, 0), Vector(9.85995, 6.38687, 0), Vector(9.448939, 6.491403, 0), Vector(9.171087, 6.506141, 0), Vector(9.032311, 6.513502, 0)], [4, 1, 1, 1, 1, 1, 1, 1, 1, 1, 1, 1, 1, 1, 1, 1, 1, 1, 1, 1, 4], [0, 1.31362396, 2.569729283, 3.763502607, 4.902122613, 5.988968491, 7.01645872, 7.998833611, 8.933434873, 9.825090667, 10.667526885, 11.477055099, 12.250526234, 12.991942729, 13.710640831, 14.402115721, 15.076753259, 16.378508321, 17.609869233, 18.806226677, 20], False, 3, [1, 1, 1, 1, 1, 1, 1, 1, 1, 1, 1, 1, 1, 1, 1, 1, 1, 1, 1, 1, 1, 1, 1], False),
    Part.BSplineCurve([Vector(11.75701, -2.052383, 0), Vector(11.795298, -1.939064, 0), Vector(11.873039, -1.708977, 0), Vector(11.97323, -1.352057, 0), Vector(12.052135, -0.977579, 0), Vector(12.123122, -0.587779, 0), Vector(12.171575, -0.179784, 0), Vector(12.210574, 0.245145, 0), Vector(12.233545, 0.687328, 0), Vector(12.236393, 0.987756, 0), Vector(12.23784, 1.140425, 0)], [4, 1, 1, 1, 1, 1, 1, 1, 4], [0, 0.884706709, 1.796334032, 2.740027952, 3.714592787, 4.726048262, 5.777819803, 6.87074269, 8], False, 3, [1, 1, 1, 1, 1, 1, 1, 1, 1, 1, 1], False),
    Part.BSplineCurve([Vector(9.032311, -4.232652, 0), Vector(9.172946, -4.226854, 0), Vector(9.453925, -4.21527, 0), Vector(9.86444, -4.103515, 0), Vector(10.262967, -3.934897, 0), Vector(10.575285, -3.735516, 0), Vector(10.812893, -3.545639, 0), Vector(10.983134, -3.383752, 0), Vector(11.139388, -3.202483, 0), Vector(11.287587, -3.006906, 0), Vector(11.423509, -2.793283, 0), Vector(11.54711, -2.562641, 0), Vector(11.659898, -2.314341, 0), Vector(11.724157, -2.141005, 0), Vector(11.75701, -2.052383, 0)], [4, 1, 1, 1, 1, 1, 1, 1, 1, 1, 1, 1, 4], [0, 1.353760809, 2.704726607, 4.075137775, 5.516104923, 6.260822281, 7.007110065, 7.778089737, 8.566572457, 9.372053459, 10.217411131, 11.088608312, 12], False, 3, [1, 1, 1, 1, 1, 1, 1, 1, 1, 1, 1, 1, 1, 1, 1], False),
    Part.BSplineCurve([Vector(5.88784, 1.140425, 0), Vector(5.888273, 0.970794, 0), Vector(5.889114, 0.641574, 0), Vector(5.91109, 0.163171, 0), Vector(5.941026, -0.283035, 0), Vector(5.979639, -0.697612, 0), Vector(6.036981, -1.079157, 0), Vector(6.101231, -1.430292, 0), Vector(6.17942, -1.749161, 0), Vector(6.271931, -2.037951, 0), Vector(6.377301, -2.301564, 0), Vector(6.492348, -2.54686, 0), Vector(6.61594, -2.776737, 0), Vector(6.754258, -2.98913, 0), Vector(6.904898, -3.184732, 0), Vector(7.064458, -3.367006, 0), Vector(7.238893, -3.529555, 0), Vector(7.480207, -3.724507, 0), Vector(7.798783, -3.925962, 0), Vector(8.200177, -4.101389, 0), Vector(8.612631, -4.211634, 0), Vector(8.89258, -4.225654, 0), Vector(9.032311, -4.232652, 0)], [4, 1, 1, 1, 1, 1, 1, 1, 1, 1, 1, 1, 1, 1, 1, 1, 1, 1, 1, 1, 4], [0, 1.459021318, 2.831673884, 4.118529203, 5.306027144, 6.411944654, 7.436330062, 8.375795394, 9.233974572, 10.042671642, 10.816086306, 11.563610507, 12.285937304, 12.993564865, 13.685989202, 14.367179055, 15.041617293, 16.353048772, 17.594441528, 18.799311195, 20], False, 3, [1, 1, 1, 1, 1, 1, 1, 1, 1, 1, 1, 1, 1, 1, 1, 1, 1, 1, 1, 1, 1, 1, 1], False),
], False)
sketch2.addConstraint([
    Sketcher.Constraint("Block", 6),
    Sketcher.Constraint("Block", 7),
    Sketcher.Constraint("Block", 8),
    Sketcher.Constraint("Block", 9),
    Sketcher.Constraint("Block", 10),
    Sketcher.Constraint("Block", 11),
    Sketcher.Constraint("Block", 12),
    Sketcher.Constraint("Block", 13),
    Sketcher.Constraint("Block", 14),
    Sketcher.Constraint("Block", 15),
    Sketcher.Constraint("Block", 16),
    Sketcher.Constraint("Block", 17),
    Sketcher.Constraint("Block", 18),
    Sketcher.Constraint("Block", 19),
    Sketcher.Constraint("Block", 20),
    Sketcher.Constraint("Block", 21),
    Sketcher.Constraint("Block", 22),
    Sketcher.Constraint("Block", 23),
    Sketcher.Constraint("Coincident", 0, 2, 1, 1),
    Sketcher.Constraint("Coincident", 1, 2, 2, 1),
    Sketcher.Constraint("Coincident", 2, 2, 3, 1),
    Sketcher.Constraint("Coincident", 3, 2, 4, 1),
    Sketcher.Constraint("Coincident", 4, 2, 5, 1),
    Sketcher.Constraint("Coincident", 5, 2, 0, 1),
    Sketcher.Constraint("Horizontal", 0),
    Sketcher.Constraint("Horizontal", 2),
    Sketcher.Constraint("Vertical", 3),
    Sketcher.Constraint("Horizontal", 4),
    Sketcher.Constraint("Vertical", 5),
    Sketcher.Constraint("DistanceY", 5, 1, 5, 2, 12.7),
    Sketcher.Constraint("Distance", 1, 1.500771),
    Sketcher.Constraint("DistanceX", 0, 2, 0, 1, 2.348177),
    Sketcher.Constraint("DistanceX", 2, 1, 2, 2, 1.953846),
    Sketcher.Constraint("DistanceX", 4, 1, 4, 2, 1.139744),
    Sketcher.Constraint("DistanceX", 1, 2, -1, 1, 12.836519),
    Sketcher.Constraint("DistanceY", -1, 1, 1, 2, 6.187861),
])
pad2 = body.newObject("PartDesign::Pad", "Pad001")
pad2.Profile = sketch2
pad2.Length = 0.1

doc.recompute()
